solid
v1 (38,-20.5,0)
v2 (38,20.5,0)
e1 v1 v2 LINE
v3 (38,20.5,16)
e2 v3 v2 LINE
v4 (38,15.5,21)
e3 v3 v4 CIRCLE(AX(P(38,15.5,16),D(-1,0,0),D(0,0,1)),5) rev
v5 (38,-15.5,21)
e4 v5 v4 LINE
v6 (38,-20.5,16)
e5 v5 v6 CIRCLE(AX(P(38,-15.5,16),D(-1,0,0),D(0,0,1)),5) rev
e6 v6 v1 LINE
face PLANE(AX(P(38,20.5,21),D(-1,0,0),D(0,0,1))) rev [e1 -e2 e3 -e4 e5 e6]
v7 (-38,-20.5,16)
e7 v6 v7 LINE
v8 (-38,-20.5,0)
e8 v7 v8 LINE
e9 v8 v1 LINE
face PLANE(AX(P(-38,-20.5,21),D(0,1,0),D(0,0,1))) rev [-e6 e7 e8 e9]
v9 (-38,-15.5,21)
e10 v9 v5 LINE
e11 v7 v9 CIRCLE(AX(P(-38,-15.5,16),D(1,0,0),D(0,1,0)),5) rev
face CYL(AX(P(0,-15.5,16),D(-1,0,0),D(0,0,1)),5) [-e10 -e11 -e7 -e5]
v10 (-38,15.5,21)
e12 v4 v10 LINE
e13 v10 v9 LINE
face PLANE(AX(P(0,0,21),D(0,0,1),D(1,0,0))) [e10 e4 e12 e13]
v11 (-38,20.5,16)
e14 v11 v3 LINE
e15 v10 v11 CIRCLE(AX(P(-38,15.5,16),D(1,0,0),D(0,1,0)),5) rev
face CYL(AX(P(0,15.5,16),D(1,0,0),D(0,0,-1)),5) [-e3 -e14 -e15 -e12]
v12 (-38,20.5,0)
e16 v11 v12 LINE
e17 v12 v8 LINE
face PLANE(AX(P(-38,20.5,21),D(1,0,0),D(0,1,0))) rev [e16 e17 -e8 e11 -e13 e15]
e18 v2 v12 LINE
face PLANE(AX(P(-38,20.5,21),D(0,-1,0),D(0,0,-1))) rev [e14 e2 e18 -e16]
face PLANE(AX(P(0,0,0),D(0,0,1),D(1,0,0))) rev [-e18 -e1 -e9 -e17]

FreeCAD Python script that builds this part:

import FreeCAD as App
import Part
import Sketcher


def edges_at(feature, points):
    """Names of the edges that pass closest to the given points."""
    edges = feature.Shape.Edges
    near = lambda p: min(range(len(edges)), key=lambda i: edges[i].distToShape(Part.Vertex(*p))[0])
    return sorted({f"Edge{near(p) + 1}" for p in points})


def add_polygon(sketch, points):
    """Adds a closed chain of lines whose ends are joined by coincident constraints."""
    first, n = sketch.GeometryCount, len(points)
    for a, b in zip(points, points[1:] + points[:1]):
        sketch.addGeometry(Part.LineSegment(App.Vector(*a, 0), App.Vector(*b, 0)), False)
    for i in range(n):
        sketch.addConstraint(Sketcher.Constraint("Coincident", first + i, 2, first + (i + 1) % n, 1))

doc = App.newDocument("Part")
body = doc.addObject("PartDesign::Body", "Body")

# Sketch on XY plane
sketch1 = body.newObject("Sketcher::SketchObject", "Sketch")
sketch1.AttachmentSupport = (doc.getObject("XY_Plane"), [""])
sketch1.MapMode = "FlatFace"
add_polygon(sketch1, [(-38, 20), (-38, -20), (38, -20), (38, 20)])  # lines 0-3
sketch1.addConstraint([
    Sketcher.Constraint("Vertical", 0),
    Sketcher.Constraint("Horizontal", 1),
    Sketcher.Constraint("Vertical", 2),
    Sketcher.Constraint("Horizontal", 3),
    Sketcher.Constraint("Symmetric", 0, 2, 2, 2, -1, 1),
    Sketcher.Constraint("DistanceX", 1, 1, 1, 2, 76.0),
    Sketcher.Constraint("DistanceY", 0, 2, 0, 1, 41.0),
])
pad1 = body.newObject("PartDesign::Pad", "Pad")
pad1.Profile = sketch1
pad1.Length = 21
doc.recompute()

fillet = body.newObject("PartDesign::Fillet", "Fillet")
fillet.Base = (pad1, edges_at(pad1, [(0, -20.5, 21), (0, 20.5, 21)]))
fillet.Radius = 5

doc.recompute()
